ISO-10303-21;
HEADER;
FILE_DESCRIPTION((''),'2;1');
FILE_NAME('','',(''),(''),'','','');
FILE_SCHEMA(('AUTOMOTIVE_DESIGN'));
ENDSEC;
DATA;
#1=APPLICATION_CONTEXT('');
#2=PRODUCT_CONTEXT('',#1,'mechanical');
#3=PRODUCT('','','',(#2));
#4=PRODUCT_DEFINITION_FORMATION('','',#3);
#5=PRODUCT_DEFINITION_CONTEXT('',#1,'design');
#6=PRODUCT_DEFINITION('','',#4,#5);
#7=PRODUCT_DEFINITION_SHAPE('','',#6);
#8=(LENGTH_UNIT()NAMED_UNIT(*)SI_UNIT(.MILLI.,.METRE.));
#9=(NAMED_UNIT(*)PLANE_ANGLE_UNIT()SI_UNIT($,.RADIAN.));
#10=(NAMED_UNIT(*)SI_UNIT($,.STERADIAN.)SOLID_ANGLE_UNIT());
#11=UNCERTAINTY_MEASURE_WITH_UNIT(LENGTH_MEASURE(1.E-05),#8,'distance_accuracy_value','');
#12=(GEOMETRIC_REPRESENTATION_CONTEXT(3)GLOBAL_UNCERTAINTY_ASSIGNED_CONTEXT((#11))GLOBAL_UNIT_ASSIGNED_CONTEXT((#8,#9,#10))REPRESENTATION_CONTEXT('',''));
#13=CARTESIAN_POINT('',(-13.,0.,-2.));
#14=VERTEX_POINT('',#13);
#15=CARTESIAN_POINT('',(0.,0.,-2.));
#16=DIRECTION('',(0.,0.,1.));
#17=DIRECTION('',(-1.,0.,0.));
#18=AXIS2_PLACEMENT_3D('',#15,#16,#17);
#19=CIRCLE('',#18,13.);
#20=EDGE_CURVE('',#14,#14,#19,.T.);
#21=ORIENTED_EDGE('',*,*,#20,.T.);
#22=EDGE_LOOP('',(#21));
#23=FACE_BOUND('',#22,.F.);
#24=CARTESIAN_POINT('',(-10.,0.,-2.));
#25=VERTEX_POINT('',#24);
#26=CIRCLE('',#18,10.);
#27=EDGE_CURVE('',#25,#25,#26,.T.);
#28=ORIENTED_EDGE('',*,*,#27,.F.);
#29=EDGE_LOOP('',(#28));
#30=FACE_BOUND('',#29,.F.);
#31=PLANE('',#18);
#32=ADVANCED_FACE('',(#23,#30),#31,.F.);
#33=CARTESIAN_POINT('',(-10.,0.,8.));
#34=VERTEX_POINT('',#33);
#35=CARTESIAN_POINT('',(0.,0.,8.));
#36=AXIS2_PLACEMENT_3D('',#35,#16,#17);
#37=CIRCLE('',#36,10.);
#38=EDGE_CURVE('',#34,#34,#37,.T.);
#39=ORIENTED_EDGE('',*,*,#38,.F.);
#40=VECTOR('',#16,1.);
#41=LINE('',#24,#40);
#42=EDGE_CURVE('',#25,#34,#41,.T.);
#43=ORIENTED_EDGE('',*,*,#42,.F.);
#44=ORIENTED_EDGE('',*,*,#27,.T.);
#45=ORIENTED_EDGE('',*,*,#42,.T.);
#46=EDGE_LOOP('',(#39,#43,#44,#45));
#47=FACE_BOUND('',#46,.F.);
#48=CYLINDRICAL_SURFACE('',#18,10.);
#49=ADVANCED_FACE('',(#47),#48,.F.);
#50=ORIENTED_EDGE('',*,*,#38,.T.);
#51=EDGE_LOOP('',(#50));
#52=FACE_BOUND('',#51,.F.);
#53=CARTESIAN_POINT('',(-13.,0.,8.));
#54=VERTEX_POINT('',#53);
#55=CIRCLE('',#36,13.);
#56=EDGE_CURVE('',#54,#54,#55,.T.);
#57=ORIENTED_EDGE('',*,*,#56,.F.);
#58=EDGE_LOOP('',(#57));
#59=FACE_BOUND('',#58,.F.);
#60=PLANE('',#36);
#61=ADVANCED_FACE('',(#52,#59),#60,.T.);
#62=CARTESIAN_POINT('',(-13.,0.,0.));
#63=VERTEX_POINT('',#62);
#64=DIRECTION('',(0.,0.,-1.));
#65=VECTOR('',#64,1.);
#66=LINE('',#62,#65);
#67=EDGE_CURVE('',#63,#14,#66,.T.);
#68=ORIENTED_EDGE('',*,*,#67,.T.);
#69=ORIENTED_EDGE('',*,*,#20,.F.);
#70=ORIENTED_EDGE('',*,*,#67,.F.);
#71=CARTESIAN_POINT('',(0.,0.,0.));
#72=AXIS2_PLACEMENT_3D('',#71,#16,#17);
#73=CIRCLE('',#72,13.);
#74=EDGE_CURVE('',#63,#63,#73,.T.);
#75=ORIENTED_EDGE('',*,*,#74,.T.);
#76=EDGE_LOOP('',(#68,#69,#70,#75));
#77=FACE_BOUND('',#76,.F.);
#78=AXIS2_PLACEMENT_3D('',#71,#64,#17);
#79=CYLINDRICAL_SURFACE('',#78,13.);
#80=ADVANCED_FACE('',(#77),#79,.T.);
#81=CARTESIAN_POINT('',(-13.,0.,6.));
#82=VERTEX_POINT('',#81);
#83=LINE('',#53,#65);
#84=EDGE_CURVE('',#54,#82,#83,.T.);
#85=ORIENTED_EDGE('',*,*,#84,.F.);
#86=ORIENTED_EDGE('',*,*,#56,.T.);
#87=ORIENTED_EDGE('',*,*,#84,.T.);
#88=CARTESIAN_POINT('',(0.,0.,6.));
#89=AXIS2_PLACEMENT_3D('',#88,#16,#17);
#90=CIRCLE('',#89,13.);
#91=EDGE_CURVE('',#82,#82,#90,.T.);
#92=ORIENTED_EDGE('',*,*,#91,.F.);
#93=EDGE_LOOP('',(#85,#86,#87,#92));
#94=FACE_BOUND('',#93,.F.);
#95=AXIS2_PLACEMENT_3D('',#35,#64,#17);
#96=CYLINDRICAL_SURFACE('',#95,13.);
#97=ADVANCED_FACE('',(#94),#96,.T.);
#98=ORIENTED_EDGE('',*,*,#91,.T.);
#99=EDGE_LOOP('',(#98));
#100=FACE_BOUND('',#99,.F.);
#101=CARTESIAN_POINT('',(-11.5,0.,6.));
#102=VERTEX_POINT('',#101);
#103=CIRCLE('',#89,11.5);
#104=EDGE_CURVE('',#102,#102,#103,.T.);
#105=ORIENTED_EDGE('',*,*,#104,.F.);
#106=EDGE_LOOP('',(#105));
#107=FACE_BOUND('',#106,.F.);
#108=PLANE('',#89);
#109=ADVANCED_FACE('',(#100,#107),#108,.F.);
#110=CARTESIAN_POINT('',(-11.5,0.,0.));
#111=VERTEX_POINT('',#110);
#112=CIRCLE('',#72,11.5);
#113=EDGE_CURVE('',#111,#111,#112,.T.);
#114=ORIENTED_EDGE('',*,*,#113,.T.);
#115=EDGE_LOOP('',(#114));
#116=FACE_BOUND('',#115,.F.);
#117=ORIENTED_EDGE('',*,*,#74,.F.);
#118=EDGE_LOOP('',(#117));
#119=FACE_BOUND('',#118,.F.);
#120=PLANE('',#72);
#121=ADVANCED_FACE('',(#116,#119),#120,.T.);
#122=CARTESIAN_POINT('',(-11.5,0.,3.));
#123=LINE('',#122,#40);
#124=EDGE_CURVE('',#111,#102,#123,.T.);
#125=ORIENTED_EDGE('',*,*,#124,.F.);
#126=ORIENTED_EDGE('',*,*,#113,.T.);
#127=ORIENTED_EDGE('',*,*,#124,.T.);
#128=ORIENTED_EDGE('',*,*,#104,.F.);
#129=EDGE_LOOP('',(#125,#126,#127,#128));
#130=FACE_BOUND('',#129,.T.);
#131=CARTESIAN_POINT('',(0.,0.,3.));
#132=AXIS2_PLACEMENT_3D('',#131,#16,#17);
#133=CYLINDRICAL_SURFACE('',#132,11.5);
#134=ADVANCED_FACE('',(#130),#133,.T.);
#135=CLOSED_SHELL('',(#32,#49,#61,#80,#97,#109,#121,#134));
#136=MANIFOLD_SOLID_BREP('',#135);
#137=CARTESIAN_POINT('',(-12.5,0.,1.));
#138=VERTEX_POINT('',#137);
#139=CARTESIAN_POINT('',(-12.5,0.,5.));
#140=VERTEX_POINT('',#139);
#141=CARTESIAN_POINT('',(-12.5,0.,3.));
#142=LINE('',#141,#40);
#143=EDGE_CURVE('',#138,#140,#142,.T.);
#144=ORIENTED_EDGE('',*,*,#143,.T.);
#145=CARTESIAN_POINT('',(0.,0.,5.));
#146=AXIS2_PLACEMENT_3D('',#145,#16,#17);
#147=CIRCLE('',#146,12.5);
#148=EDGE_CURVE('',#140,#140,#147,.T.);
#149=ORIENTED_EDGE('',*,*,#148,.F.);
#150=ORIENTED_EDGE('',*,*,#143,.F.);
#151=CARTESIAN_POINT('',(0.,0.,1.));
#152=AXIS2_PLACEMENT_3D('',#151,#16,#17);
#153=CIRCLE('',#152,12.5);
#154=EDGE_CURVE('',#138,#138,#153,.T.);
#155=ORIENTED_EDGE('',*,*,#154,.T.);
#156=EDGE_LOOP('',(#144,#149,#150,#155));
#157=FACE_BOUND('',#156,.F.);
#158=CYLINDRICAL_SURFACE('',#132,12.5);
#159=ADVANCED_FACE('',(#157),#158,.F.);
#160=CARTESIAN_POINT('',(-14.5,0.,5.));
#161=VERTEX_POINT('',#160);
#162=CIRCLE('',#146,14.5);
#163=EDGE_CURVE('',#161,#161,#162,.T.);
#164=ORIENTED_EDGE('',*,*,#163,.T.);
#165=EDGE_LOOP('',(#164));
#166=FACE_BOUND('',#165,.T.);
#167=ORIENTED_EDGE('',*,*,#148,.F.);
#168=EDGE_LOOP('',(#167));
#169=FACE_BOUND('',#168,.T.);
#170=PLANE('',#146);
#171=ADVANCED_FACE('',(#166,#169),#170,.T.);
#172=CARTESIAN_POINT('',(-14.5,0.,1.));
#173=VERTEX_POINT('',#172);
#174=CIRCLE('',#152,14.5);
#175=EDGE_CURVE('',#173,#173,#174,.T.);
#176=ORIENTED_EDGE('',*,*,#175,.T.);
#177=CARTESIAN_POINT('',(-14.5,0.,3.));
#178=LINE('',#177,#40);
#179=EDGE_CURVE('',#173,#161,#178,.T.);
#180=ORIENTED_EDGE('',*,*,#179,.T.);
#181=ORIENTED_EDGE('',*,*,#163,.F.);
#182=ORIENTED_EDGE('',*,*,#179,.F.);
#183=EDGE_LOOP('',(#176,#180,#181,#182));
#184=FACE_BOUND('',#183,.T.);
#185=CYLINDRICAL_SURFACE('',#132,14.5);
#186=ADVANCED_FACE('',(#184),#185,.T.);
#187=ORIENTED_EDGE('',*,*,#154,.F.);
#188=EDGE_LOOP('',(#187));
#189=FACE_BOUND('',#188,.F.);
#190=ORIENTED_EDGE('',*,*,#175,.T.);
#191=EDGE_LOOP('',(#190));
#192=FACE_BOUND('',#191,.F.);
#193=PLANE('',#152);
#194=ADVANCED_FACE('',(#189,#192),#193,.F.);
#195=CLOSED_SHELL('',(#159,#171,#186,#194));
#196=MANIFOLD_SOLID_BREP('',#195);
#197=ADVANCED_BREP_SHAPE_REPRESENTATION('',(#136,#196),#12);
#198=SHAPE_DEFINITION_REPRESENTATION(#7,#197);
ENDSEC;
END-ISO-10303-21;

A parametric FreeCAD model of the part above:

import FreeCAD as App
import Part
import Sketcher
from FreeCAD import Vector
Q = App.Units.Quantity


def add_polygon(sketch, points):
    """Adds a closed chain of lines whose ends are joined by coincident constraints."""
    first, n = sketch.GeometryCount, len(points)
    for a, b in zip(points, points[1:] + points[:1]):
        sketch.addGeometry(Part.LineSegment(App.Vector(*a, 0), App.Vector(*b, 0)), False)
    for i in range(n):
        sketch.addConstraint(Sketcher.Constraint("Coincident", first + i, 2, first + (i + 1) % n, 1))

doc = App.newDocument("Part")
body = doc.addObject("PartDesign::Body", "Body")
body.AllowCompound = True

# Sketch on XZ plane
sketch1 = body.newObject("Sketcher::SketchObject", "Sketch")
sketch1.AttachmentSupport = (doc.getObject("XZ_Plane"), [""])
sketch1.MapMode = "FlatFace"
add_polygon(sketch1, [(-10, 8), (-13, 8), (-13, 6), (-11.5, 6), (-11.5, 0), (-13, 0), (-13, -2), (-10, -2)])  # lines 0-7
add_polygon(sketch1, [(-14.5, 5), (-14.5, 1), (-12.5, 1), (-12.5, 5)])  # lines 8-11
sketch1.addConstraint(Sketcher.Constraint("Horizontal", 0))
sketch1.addConstraint(Sketcher.Constraint("Vertical", 1))
sketch1.addConstraint(Sketcher.Constraint("Horizontal", 2))
sketch1.addConstraint(Sketcher.Constraint("Vertical", 3))
sketch1.addConstraint(Sketcher.Constraint("Horizontal", 4))
sketch1.addConstraint(Sketcher.Constraint("Vertical", 5))
sketch1.addConstraint(Sketcher.Constraint("Horizontal", 6))
sketch1.addConstraint(Sketcher.Constraint("Vertical", 7))
sketch1.addConstraint(Sketcher.Constraint("Vertical", 8))
sketch1.addConstraint(Sketcher.Constraint("Horizontal", 9))
sketch1.addConstraint(Sketcher.Constraint("Vertical", 10))
sketch1.addConstraint(Sketcher.Constraint("Horizontal", 11))
sketch1.addConstraint(Sketcher.Constraint("PointOnObject", 3, 2, -1))
sketch1.addConstraint(Sketcher.Constraint("Vertical", 1, 2, 4, 2))
sketch1.addConstraint(Sketcher.Constraint("Equal", 11, 1))
sketch1.addConstraint(Sketcher.Constraint("Equal", 1, 5))
sketch1.addConstraint(Sketcher.Constraint("DistanceX", 0, 2, 0, 1, Q("3 mm")))
sketch1.addConstraint(Sketcher.Constraint("DistanceX", 9, 1, 9, 2, Q("2 mm")))
sketch1.addConstraint(Sketcher.Constraint("DistanceY", 3, 2, 3, 1, Q("6 mm")))
sketch1.addConstraint(Sketcher.Constraint("DistanceY", 8, 2, 8, 1, Q("4 mm")))
sketch1.addConstraint(Sketcher.Constraint("DistanceX", 2, 1, 2, 2, Q("1.5 mm")))
sketch1.addConstraint(Sketcher.Constraint("DistanceX", 0, 2, -1, 1, Q("13 mm")))
sketch1.addConstraint(Sketcher.Constraint("DistanceY", -1, 1, 8, 2, Q("1 mm")))
sketch1.addConstraint(Sketcher.Constraint("DistanceX", 8, 2, 3, 2, Q("3 mm")))
revolution = body.newObject("PartDesign::Revolution", "Revolution")
revolution.Profile = sketch1
revolution.ReferenceAxis = (sketch1, ["V_Axis"])
revolution.Angle = 360

doc.recompute()
